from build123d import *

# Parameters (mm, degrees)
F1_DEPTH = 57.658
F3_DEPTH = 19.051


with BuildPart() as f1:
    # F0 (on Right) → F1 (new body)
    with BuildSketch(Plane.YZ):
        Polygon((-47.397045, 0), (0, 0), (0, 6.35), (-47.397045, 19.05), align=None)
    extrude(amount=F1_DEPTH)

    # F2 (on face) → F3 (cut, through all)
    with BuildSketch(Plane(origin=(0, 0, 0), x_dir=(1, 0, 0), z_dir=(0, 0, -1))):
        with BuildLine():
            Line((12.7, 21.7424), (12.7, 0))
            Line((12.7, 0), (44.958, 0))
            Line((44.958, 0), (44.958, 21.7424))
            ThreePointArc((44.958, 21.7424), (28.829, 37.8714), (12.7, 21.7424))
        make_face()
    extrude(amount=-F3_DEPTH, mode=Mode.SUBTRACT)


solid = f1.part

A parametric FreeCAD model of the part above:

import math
import FreeCAD as App
import Part
import Sketcher

V = App.Vector
Q = App.Units.Quantity


def add_polygon(sketch, points):
    """Adds a closed chain of lines whose ends are joined by coincident constraints."""
    first, n = sketch.GeometryCount, len(points)
    for a, b in zip(points, points[1:] + points[:1]):
        sketch.addGeometry(Part.LineSegment(App.Vector(*a, 0), App.Vector(*b, 0)), False)
    for i in range(n):
        sketch.addConstraint(Sketcher.Constraint("Coincident", first + i, 2, first + (i + 1) % n, 1))

doc = App.newDocument("Part")
body = doc.addObject("PartDesign::Body", "Body")

sketch1 = body.newObject("Sketcher::SketchObject", "Sketch")
sketch1.AttachmentSupport = (doc.getObject("YZ_Plane"), [""])
sketch1.MapMode = "FlatFace"
add_polygon(sketch1, [(-47.397045, 0), (0, 0), (0, 6.35), (-47.397045, 19.05)])
sketch1.addConstraint(Sketcher.Constraint("Horizontal", 0))
sketch1.addConstraint(Sketcher.Constraint("Vertical", 1))
sketch1.addConstraint(Sketcher.Constraint("Vertical", 3))
sketch1.addConstraint(Sketcher.Constraint("Coincident", 0, 2, -1, 1))
sketch1.addConstraint(Sketcher.Constraint("Angle", 2, Q("165 deg")))
sketch1.addConstraint(Sketcher.Constraint("DistanceY", 1, 1, 1, 2, Q("0.25 in")))
sketch1.addConstraint(Sketcher.Constraint("DistanceY", 3, 2, 3, 1, Q("0.75 in")))
pad1 = body.newObject("PartDesign::Pad", "Pad")
pad1.Profile = sketch1
pad1.Length = Q("2.27 in")

sketch2 = body.newObject("Sketcher::SketchObject", "Sketch001")
sketch2.AttachmentSupport = (doc.getObject("XY_Plane"), [""])
sketch2.MapMode = "FlatFace"
sketch2.addGeometry(Part.LineSegment(V(12.7, -21.7424, 0), V(12.7, 0, 0)), False)
sketch2.addGeometry(Part.LineSegment(V(12.7, 0, 0), V(44.958, 0, 0)), False)
sketch2.addGeometry(Part.LineSegment(V(44.958, 0, 0), V(44.958, -21.7424, 0)), False)
sketch2.addGeometry(Part.ArcOfCircle(Part.Circle(V(28.829, -21.7424, 0), V(0, 0, 1), 16.129), math.radians(180), math.radians(360)), False)
sketch2.addConstraint(Sketcher.Constraint("Coincident", 0, 2, 1, 1))
sketch2.addConstraint(Sketcher.Constraint("Coincident", 1, 2, 2, 1))
sketch2.addConstraint(Sketcher.Constraint("Tangent", 2, 2, 3, 2))
sketch2.addConstraint(Sketcher.Constraint("Tangent", 3, 1, 0, 1))
sketch2.addConstraint(Sketcher.Constraint("Vertical", 0))
sketch2.addConstraint(Sketcher.Constraint("Horizontal", 1))
sketch2.addConstraint(Sketcher.Constraint("Vertical", 2))
sketch2.addConstraint(Sketcher.Constraint("PointOnObject", 0, 2, -1))
sketch2.addConstraint(Sketcher.Constraint("Radius", 3, Q("0.635 in")))
sketch2.addConstraint(Sketcher.Constraint("DistanceX", -1, 1, 0, 2, Q("0.5 in")))
sketch2.addConstraint(Sketcher.Constraint("DistanceY", 0, 1, 0, 2, Q("0.856 in")))
pocket1 = body.newObject("PartDesign::Pocket", "Pocket")
pocket1.Profile = sketch2
pocket1.Type = "ThroughAll"
pocket1.Reversed = True

doc.recompute()
